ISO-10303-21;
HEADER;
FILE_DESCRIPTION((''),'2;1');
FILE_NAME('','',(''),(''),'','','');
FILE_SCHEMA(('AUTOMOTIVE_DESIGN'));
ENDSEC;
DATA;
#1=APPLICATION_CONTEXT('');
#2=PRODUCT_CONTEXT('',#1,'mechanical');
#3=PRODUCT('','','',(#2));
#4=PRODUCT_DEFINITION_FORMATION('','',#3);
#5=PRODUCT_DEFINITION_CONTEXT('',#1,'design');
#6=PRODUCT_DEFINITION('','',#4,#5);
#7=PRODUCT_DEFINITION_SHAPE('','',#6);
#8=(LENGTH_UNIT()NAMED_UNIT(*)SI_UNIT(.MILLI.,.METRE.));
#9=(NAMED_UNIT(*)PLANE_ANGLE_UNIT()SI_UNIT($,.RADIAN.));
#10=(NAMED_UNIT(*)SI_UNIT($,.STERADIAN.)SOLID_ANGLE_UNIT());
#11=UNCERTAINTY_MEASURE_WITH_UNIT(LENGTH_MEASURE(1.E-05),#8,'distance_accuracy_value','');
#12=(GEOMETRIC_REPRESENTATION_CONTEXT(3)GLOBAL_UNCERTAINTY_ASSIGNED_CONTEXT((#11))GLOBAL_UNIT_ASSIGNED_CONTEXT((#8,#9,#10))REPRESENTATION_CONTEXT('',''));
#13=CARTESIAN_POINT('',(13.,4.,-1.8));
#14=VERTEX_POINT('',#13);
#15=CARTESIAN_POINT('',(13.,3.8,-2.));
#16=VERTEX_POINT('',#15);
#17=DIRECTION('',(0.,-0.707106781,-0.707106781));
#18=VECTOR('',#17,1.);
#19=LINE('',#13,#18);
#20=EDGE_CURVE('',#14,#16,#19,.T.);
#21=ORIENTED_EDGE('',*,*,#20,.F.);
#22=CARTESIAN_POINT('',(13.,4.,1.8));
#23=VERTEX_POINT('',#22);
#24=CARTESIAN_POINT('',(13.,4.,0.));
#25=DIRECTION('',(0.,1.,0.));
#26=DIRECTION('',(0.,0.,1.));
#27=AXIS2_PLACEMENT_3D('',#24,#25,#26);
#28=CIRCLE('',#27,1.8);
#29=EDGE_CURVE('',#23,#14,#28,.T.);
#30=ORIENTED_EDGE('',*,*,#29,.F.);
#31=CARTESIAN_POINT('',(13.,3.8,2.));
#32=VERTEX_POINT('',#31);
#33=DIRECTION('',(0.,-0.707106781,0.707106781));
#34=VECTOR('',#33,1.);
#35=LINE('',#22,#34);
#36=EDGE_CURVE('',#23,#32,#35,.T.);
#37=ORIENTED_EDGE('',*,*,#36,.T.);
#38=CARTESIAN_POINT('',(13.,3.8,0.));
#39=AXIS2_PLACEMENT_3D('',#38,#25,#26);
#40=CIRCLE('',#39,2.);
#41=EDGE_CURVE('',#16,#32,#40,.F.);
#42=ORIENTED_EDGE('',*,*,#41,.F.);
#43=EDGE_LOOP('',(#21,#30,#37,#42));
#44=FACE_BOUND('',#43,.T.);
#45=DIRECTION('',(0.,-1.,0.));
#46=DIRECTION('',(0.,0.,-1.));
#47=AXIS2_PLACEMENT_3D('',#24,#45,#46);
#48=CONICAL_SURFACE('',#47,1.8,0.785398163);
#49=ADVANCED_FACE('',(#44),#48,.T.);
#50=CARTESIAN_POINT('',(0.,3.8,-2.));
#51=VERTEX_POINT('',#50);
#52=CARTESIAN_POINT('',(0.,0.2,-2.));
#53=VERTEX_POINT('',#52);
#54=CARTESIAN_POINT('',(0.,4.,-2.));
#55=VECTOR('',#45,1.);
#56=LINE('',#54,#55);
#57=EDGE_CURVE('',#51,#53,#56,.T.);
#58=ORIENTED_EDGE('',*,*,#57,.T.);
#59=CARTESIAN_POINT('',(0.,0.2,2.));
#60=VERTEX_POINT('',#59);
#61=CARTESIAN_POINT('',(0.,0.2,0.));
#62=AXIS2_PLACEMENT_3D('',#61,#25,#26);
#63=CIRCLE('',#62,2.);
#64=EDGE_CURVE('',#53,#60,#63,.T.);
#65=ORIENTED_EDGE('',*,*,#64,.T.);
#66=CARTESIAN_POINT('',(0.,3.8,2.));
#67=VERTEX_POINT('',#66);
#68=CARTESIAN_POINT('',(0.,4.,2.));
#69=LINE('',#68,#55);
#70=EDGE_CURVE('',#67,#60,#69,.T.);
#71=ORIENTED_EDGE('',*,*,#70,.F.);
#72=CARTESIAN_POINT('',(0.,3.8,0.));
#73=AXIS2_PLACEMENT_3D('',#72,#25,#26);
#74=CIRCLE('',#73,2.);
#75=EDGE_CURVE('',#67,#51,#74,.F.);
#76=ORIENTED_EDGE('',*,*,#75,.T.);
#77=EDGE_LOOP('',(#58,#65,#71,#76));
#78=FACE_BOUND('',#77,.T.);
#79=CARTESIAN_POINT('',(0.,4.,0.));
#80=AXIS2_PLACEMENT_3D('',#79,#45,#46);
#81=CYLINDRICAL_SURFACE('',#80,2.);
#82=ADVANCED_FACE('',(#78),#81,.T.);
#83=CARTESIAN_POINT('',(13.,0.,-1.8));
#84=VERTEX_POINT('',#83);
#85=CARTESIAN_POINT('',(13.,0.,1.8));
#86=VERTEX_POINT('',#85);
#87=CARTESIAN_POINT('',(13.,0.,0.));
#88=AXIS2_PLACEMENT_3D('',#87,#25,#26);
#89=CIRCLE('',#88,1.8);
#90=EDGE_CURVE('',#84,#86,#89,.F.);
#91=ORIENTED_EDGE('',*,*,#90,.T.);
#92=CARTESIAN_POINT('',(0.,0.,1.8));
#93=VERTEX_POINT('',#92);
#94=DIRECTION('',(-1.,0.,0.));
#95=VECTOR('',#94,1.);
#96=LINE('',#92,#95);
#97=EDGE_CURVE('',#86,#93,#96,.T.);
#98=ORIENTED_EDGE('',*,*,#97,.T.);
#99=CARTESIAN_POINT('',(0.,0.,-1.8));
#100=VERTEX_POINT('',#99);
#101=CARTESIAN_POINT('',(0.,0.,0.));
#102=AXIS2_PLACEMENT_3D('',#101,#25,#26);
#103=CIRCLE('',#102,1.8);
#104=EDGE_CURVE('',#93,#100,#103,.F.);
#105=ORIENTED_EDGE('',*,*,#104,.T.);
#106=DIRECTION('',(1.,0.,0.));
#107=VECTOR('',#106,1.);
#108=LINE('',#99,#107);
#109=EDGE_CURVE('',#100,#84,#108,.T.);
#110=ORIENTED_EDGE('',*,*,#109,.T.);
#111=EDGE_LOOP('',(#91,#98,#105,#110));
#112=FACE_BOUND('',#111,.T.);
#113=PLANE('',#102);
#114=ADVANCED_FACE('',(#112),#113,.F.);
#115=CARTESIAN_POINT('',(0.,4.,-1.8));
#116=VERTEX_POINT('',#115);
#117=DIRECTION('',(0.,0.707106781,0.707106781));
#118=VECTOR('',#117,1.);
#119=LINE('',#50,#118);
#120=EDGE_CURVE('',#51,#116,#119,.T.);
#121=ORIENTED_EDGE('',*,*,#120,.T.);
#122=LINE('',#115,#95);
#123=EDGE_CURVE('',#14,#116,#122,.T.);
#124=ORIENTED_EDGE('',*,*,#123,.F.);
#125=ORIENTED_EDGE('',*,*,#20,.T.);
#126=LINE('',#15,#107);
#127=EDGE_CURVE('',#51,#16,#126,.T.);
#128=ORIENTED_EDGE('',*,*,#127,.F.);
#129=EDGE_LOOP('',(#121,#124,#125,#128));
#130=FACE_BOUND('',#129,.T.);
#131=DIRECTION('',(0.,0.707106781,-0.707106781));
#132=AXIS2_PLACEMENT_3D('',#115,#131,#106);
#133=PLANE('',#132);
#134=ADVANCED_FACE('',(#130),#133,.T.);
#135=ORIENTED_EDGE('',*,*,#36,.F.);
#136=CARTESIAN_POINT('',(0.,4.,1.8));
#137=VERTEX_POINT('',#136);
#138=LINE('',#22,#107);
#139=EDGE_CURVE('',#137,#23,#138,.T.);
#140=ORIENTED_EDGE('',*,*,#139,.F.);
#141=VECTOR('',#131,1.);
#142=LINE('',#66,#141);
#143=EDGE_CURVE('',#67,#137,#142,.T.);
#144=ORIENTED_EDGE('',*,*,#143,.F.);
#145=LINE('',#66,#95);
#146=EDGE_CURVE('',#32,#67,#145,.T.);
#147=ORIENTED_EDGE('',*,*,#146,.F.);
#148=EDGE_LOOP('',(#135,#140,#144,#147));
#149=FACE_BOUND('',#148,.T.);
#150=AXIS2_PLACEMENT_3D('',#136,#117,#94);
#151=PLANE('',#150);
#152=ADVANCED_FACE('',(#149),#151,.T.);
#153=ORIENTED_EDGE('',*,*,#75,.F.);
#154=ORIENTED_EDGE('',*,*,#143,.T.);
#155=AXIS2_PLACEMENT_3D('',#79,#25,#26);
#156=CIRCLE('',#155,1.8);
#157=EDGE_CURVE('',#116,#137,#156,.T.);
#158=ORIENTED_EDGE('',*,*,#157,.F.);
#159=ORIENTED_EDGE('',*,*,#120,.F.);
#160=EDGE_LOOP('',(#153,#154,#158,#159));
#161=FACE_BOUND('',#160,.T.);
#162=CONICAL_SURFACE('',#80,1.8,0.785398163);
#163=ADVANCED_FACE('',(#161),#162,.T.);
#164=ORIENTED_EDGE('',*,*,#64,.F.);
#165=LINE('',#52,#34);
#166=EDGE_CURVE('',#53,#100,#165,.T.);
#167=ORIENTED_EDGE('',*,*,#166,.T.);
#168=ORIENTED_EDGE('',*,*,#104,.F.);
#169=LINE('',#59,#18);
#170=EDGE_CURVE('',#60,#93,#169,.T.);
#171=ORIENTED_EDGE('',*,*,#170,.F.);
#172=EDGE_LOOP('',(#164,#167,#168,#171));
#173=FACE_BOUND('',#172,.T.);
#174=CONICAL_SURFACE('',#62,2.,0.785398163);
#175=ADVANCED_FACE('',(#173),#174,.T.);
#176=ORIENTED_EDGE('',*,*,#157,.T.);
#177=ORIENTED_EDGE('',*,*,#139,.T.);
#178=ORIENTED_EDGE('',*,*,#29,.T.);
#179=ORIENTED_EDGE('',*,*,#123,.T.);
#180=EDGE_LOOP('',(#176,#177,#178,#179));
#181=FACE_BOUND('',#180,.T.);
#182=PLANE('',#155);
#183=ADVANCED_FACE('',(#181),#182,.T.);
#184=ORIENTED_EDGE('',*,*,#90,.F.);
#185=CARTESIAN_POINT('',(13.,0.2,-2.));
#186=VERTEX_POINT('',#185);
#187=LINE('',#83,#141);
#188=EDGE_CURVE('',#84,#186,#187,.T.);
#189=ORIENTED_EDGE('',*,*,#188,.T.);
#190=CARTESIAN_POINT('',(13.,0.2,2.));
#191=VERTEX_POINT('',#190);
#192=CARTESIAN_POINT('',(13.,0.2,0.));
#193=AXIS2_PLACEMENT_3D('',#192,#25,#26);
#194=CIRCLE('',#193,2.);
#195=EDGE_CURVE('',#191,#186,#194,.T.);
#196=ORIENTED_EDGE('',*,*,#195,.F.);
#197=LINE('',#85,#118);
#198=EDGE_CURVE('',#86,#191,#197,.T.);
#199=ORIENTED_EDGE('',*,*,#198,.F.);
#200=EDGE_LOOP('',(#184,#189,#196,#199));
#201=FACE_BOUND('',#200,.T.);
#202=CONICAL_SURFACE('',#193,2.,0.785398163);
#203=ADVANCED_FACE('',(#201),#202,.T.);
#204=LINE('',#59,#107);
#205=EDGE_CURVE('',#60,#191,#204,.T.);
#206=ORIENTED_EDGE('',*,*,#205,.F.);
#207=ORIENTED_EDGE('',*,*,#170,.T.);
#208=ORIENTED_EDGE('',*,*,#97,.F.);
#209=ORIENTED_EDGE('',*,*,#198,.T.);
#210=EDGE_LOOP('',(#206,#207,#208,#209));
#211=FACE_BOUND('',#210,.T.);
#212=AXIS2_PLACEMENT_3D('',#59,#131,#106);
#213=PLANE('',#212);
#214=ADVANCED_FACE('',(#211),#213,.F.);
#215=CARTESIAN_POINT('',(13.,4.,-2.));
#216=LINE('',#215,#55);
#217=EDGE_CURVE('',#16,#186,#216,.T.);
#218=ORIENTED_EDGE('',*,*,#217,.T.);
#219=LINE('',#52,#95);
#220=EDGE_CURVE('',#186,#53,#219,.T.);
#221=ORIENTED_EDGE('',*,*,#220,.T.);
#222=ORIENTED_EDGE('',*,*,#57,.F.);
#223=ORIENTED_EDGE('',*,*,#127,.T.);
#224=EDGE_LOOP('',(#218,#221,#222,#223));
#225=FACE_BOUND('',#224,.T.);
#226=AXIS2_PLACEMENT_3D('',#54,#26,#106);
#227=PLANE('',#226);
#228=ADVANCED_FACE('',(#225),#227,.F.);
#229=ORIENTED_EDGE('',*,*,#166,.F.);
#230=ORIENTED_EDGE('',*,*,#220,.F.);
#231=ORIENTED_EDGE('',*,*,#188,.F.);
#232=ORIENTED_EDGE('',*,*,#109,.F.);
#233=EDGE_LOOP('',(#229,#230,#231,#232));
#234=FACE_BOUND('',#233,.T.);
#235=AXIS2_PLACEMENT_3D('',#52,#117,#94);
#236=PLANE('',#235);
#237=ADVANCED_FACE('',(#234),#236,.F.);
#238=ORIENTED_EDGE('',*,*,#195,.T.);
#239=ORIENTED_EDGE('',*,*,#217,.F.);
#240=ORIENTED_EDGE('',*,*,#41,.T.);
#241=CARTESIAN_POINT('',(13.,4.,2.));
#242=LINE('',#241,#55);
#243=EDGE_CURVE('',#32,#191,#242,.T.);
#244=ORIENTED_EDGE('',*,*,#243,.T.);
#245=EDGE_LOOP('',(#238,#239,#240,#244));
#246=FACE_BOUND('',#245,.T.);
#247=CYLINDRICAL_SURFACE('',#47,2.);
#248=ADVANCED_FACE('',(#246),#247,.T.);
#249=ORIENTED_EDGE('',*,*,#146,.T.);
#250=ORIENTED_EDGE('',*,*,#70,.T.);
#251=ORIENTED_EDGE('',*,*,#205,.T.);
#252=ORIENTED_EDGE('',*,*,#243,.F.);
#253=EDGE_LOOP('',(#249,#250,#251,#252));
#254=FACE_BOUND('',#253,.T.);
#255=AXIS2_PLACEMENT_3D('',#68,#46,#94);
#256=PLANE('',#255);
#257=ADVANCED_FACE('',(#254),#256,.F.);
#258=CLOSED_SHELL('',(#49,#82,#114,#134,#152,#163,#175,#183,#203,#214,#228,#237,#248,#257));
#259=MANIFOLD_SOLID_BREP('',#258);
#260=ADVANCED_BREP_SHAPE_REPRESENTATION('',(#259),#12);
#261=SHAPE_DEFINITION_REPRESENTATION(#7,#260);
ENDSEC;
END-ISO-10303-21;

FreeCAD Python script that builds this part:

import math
import FreeCAD as App
import Part
import Sketcher

V = App.Vector
Q = App.Units.Quantity


def edges_at(feature, points):
    """Names of the edges that pass closest to the given points."""
    edges = feature.Shape.Edges
    near = lambda p: min(range(len(edges)), key=lambda i: edges[i].distToShape(Part.Vertex(*p))[0])
    return sorted({f"Edge{near(p) + 1}" for p in points})

doc = App.newDocument("Part")
body = doc.addObject("PartDesign::Body", "Body")

sketch1 = body.newObject("Sketcher::SketchObject", "Sketch")
sketch1.AttachmentSupport = (doc.getObject("XZ_Plane"), [""])
sketch1.MapMode = "FlatFace"
sketch1.addGeometry(Part.LineSegment(V(13, -2, 0), V(0, -2, 0)), False)
sketch1.addGeometry(Part.ArcOfCircle(Part.Circle(V(0, 0, 0), V(0, 0, 1), 2), math.radians(90), math.radians(270)), False)
sketch1.addGeometry(Part.LineSegment(V(0, 2, 0), V(13, 2, 0)), False)
sketch1.addGeometry(Part.ArcOfCircle(Part.Circle(V(13, 0, 0), V(0, 0, 1), 2), math.radians(-90), math.radians(90)), False)
sketch1.addConstraint(Sketcher.Constraint("Tangent", 0, 2, 1, 2))
sketch1.addConstraint(Sketcher.Constraint("Tangent", 1, 1, 2, 1))
sketch1.addConstraint(Sketcher.Constraint("Tangent", 2, 2, 3, 2))
sketch1.addConstraint(Sketcher.Constraint("Tangent", 3, 1, 0, 1))
sketch1.addConstraint(Sketcher.Constraint("Horizontal", 0))
sketch1.addConstraint(Sketcher.Constraint("Horizontal", 2))
sketch1.addConstraint(Sketcher.Constraint("Coincident", 1, 3, -1, 1))
sketch1.addConstraint(Sketcher.Constraint("Radius", 1, Q("2 mm")))
sketch1.addConstraint(Sketcher.Constraint("DistanceX", 0, 2, 0, 1, Q("13 mm")))
pad1 = body.newObject("PartDesign::Pad", "Pad")
pad1.Profile = sketch1
pad1.Length = 4
pad1.Reversed = True
doc.recompute()

chamfer = body.newObject("PartDesign::Chamfer", "Chamfer")
chamfer.Base = (pad1, edges_at(pad1, [
    (15, 4, 0),
    (6.5, 4, -2),
    (-2, 4, 0),
    (6.5, 0, -2),
    (15, 0, 0),
    (6.5, 0, 2),
    (-2, 0, 0),
    (6.5, 4, 2),
]))
chamfer.Size = 0.2

doc.recompute()
